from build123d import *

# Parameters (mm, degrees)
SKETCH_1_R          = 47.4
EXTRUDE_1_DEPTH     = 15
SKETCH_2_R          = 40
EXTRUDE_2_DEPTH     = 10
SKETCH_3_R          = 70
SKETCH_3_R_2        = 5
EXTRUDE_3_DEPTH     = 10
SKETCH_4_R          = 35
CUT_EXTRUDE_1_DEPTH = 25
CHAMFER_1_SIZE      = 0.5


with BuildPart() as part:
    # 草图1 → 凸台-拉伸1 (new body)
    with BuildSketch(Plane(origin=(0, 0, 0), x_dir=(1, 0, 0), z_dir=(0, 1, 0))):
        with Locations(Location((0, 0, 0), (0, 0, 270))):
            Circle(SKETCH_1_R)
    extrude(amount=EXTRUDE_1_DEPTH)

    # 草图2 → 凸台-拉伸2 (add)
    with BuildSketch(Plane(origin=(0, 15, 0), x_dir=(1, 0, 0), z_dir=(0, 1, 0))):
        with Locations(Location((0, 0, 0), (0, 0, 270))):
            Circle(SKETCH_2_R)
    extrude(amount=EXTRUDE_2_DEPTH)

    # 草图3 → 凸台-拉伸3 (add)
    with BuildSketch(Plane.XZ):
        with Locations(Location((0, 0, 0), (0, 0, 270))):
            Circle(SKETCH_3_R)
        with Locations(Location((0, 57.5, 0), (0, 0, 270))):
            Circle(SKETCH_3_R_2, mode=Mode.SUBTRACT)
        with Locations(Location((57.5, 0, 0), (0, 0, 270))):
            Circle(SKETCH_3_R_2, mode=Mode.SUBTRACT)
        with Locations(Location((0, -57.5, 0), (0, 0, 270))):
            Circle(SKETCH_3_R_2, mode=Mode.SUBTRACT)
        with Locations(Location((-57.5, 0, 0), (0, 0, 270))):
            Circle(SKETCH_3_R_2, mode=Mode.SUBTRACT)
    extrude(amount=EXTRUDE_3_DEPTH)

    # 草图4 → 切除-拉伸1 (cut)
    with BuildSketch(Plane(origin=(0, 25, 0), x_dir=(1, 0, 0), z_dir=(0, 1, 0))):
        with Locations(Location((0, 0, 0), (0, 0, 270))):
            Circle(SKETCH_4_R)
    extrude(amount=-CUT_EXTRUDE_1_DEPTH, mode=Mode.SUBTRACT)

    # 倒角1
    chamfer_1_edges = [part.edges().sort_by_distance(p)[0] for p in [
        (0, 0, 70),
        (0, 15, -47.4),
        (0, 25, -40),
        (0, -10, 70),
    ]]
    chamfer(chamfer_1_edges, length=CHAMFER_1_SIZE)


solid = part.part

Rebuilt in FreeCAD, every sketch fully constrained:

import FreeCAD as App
import Part
import Sketcher
from FreeCAD import Vector
Q = App.Units.Quantity


def edges_at(feature, points):
    """Names of the edges that pass closest to the given points."""
    edges = feature.Shape.Edges
    near = lambda p: min(range(len(edges)), key=lambda i: edges[i].distToShape(Part.Vertex(*p))[0])
    return sorted({f"Edge{near(p) + 1}" for p in points})

doc = App.newDocument("Part")
params = doc.addObject("Spreadsheet::Sheet", "Params")
for row, (alias, value) in enumerate([
    ("sketch1_diameter", "94.8 mm"),
    ("pad1_length", "15 mm"),
    ("sketch2_diameter", "80 mm"),
    ("pad2_length", "10 mm"),
    ("sketch3_diameter", "140 mm"),
    ("sketch3_diameter2", "10 mm"),
    ("pad3_length", "10 mm"),
    ("sketch4_diameter", "70 mm"),
    ("pocket1_length", "25 mm"),
    ("chamfer_size", "0.5 mm"),
], start=1):
    params.set(f"A{row}", alias)
    params.set(f"B{row}", "=" + value)
    params.setAlias(f"B{row}", alias)

body = doc.addObject("PartDesign::Body", "Body")

# Sketch on XZ plane
sketch1 = doc.addObject("Sketcher::SketchObject", "Sketch")
body.addObject(sketch1)
sketch1.AttachmentSupport = (doc.XZ_Plane, [""])
sketch1.MapMode = "FlatFace"
sketch1.addGeometry(Part.Circle(Vector(0, 0, 0), Vector(0, 0, 1), 47), False)
sketch1.addConstraint([
    Sketcher.Constraint("Coincident", 0, 3, -1, 1),
    Sketcher.Constraint("Diameter", 0, Q("94.8 mm")),
])
sketch1.setExpression("Constraints[1]", "Params.sketch1_diameter")
pad1 = doc.addObject("PartDesign::Pad", "Pad")
body.addObject(pad1)
pad1.Profile = sketch1
pad1.setExpression("Length", "Params.pad1_length")
pad1.Reversed = True

# Sketch on XZ plane
sketch2 = doc.addObject("Sketcher::SketchObject", "Sketch001")
body.addObject(sketch2)
sketch2.AttachmentSupport = (doc.XZ_Plane, [""])
sketch2.MapMode = "FlatFace"
sketch2.AttachmentOffset = App.Placement(Vector(0, 0, -15), App.Rotation())
sketch2.addGeometry(Part.Circle(Vector(0, 0, 0), Vector(0, 0, 1), 40), False)
sketch2.addConstraint([
    Sketcher.Constraint("Coincident", 0, 3, -1, 1),
    Sketcher.Constraint("Diameter", 0, Q("80 mm")),
])
sketch2.setExpression("Constraints[1]", "Params.sketch2_diameter")
pad2 = doc.addObject("PartDesign::Pad", "Pad001")
body.addObject(pad2)
pad2.Profile = sketch2
pad2.setExpression("Length", "Params.pad2_length")
pad2.Reversed = True

# Sketch on XZ plane
sketch3 = doc.addObject("Sketcher::SketchObject", "Sketch002")
body.addObject(sketch3)
sketch3.AttachmentSupport = (doc.XZ_Plane, [""])
sketch3.MapMode = "FlatFace"
sketch3.addGeometry([
    Part.Circle(Vector(0, 0, 0), Vector(0, 0, 1), 70),  # 0
    Part.Circle(Vector(0, 58, 0), Vector(0, 0, 1), 5),  # 1
    Part.Circle(Vector(-58, 0, 0), Vector(0, 0, 1), 5),  # 2
    Part.Circle(Vector(58, 0, 0), Vector(0, 0, 1), 5),  # 3
    Part.Circle(Vector(0, -58, 0), Vector(0, 0, 1), 5),  # 4
], False)
sketch3.addConstraint([
    Sketcher.Constraint("Coincident", 0, 3, -1, 1),
    Sketcher.Constraint("Equal", 1, 2),
    Sketcher.Constraint("Equal", 2, 3),
    Sketcher.Constraint("Equal", 3, 4),
    Sketcher.Constraint("Symmetric", 2, 3, 3, 3, -1, 1),
    Sketcher.Constraint("Symmetric", 1, 3, 4, 3, -1, 1),
    Sketcher.Constraint("PointOnObject", 1, 3, -2),
    Sketcher.Constraint("PointOnObject", 2, 3, -1),
    Sketcher.Constraint("Diameter", 0, Q("140 mm")),
    Sketcher.Constraint("Diameter", 1, Q("10 mm")),
    Sketcher.Constraint("DistanceX", 2, 3, 3, 3, Q("115 mm")),
    Sketcher.Constraint("DistanceY", 4, 3, 1, 3, Q("115 mm")),
])
sketch3.setExpression("Constraints[8]", "Params.sketch3_diameter")
sketch3.setExpression("Constraints[9]", "Params.sketch3_diameter2")
pad3 = doc.addObject("PartDesign::Pad", "Pad002")
body.addObject(pad3)
pad3.Profile = sketch3
pad3.setExpression("Length", "Params.pad3_length")

# Sketch on XZ plane
sketch4 = doc.addObject("Sketcher::SketchObject", "Sketch003")
body.addObject(sketch4)
sketch4.AttachmentSupport = (doc.XZ_Plane, [""])
sketch4.MapMode = "FlatFace"
sketch4.AttachmentOffset = App.Placement(Vector(0, 0, -25), App.Rotation())
sketch4.addGeometry(Part.Circle(Vector(0, 0, 0), Vector(0, 0, 1), 35), False)
sketch4.addConstraint([
    Sketcher.Constraint("Coincident", 0, 3, -1, 1),
    Sketcher.Constraint("Diameter", 0, Q("70 mm")),
])
sketch4.setExpression("Constraints[1]", "Params.sketch4_diameter")
pocket1 = doc.addObject("PartDesign::Pocket", "Pocket")
body.addObject(pocket1)
pocket1.Profile = sketch4
pocket1.setExpression("Length", "Params.pocket1_length")
pocket1.Reversed = True
doc.recompute()

chamfer = doc.addObject("PartDesign::Chamfer", "Chamfer")
body.addObject(chamfer)
chamfer.Base = (pocket1, edges_at(pocket1, [
    (0, 0, 70),
    (0, 15, -47.4),
    (0, 25, -40),
    (0, -10, 70),
]))
chamfer.setExpression("Size", "Params.chamfer_size")

doc.recompute()
